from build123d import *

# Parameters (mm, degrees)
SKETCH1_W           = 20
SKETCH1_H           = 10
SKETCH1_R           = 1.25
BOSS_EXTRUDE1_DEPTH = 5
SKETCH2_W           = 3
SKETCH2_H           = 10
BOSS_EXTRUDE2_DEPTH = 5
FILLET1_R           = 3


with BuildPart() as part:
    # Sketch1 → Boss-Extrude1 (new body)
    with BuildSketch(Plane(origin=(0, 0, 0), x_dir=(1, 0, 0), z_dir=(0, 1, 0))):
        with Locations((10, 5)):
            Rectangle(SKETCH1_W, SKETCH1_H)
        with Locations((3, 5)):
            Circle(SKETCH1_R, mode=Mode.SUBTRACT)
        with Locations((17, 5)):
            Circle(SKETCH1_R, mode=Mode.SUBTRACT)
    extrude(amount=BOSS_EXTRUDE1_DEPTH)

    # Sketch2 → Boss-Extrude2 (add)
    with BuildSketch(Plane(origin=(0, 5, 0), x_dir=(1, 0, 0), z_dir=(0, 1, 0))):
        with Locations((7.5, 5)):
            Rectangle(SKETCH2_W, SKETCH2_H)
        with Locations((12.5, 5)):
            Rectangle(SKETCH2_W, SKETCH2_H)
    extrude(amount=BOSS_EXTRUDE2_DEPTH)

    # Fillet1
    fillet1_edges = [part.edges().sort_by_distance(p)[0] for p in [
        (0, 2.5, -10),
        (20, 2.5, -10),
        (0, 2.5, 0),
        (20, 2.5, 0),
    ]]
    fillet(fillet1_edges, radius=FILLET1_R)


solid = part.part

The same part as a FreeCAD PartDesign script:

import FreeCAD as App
import Part
import Sketcher
from FreeCAD import Vector
Q = App.Units.Quantity


def edges_at(feature, points):
    """Names of the edges that pass closest to the given points."""
    edges = feature.Shape.Edges
    near = lambda p: min(range(len(edges)), key=lambda i: edges[i].distToShape(Part.Vertex(*p))[0])
    return sorted({f"Edge{near(p) + 1}" for p in points})


def add_polygon(sketch, points):
    """Adds a closed chain of lines whose ends are joined by coincident constraints."""
    first, n = sketch.GeometryCount, len(points)
    for a, b in zip(points, points[1:] + points[:1]):
        sketch.addGeometry(Part.LineSegment(App.Vector(*a, 0), App.Vector(*b, 0)), False)
    for i in range(n):
        sketch.addConstraint(Sketcher.Constraint("Coincident", first + i, 2, first + (i + 1) % n, 1))

doc = App.newDocument("Part")
body = doc.addObject("PartDesign::Body", "Body")

# Sketch on XZ plane
sketch1 = body.newObject("Sketcher::SketchObject", "Sketch")
sketch1.AttachmentSupport = (doc.getObject("XZ_Plane"), [""])
sketch1.MapMode = "FlatFace"
add_polygon(sketch1, [(0, -10), (0, 0), (20, 0), (20, -10)])  # lines 0-3
sketch1.addGeometry(Part.Circle(Vector(3, -5, 0), Vector(0, 0, 1), 1.2), False)  # 4
sketch1.addGeometry(Part.Circle(Vector(17, -5, 0), Vector(0, 0, 1), 1.2), False)  # 5
sketch1.addConstraint([
    Sketcher.Constraint("Vertical", 0),
    Sketcher.Constraint("Horizontal", 1),
    Sketcher.Constraint("Vertical", 2),
    Sketcher.Constraint("Horizontal", 3),
    Sketcher.Constraint("Coincident", 0, 2, -1, 1),
    Sketcher.Constraint("Equal", 4, 5),
    Sketcher.Constraint("Horizontal", 4, 3, 5, 3),
    Sketcher.Constraint("Diameter", 4, Q("2.5 mm")),
    Sketcher.Constraint("DistanceX", 1, 1, 1, 2, Q("20 mm")),
    Sketcher.Constraint("DistanceY", 0, 1, 0, 2, Q("10 mm")),
    Sketcher.Constraint("DistanceX", -1, 1, 4, 3, Q("3 mm")),
    Sketcher.Constraint("DistanceY", 4, 3, -1, 1, Q("5 mm")),
    Sketcher.Constraint("DistanceX", -1, 1, 5, 3, Q("17 mm")),
])
pad1 = body.newObject("PartDesign::Pad", "Pad")
pad1.Profile = sketch1
pad1.Length = 5
pad1.Reversed = True

# Sketch on XZ plane
sketch2 = body.newObject("Sketcher::SketchObject", "Sketch001")
sketch2.AttachmentSupport = (doc.getObject("XZ_Plane"), [""])
sketch2.MapMode = "FlatFace"
sketch2.AttachmentOffset = App.Placement(Vector(0, 0, -5), App.Rotation())
add_polygon(sketch2, [(6, -10), (6, 0), (9, 0), (9, -10)])  # lines 0-3
add_polygon(sketch2, [(11, -10), (11, 0), (14, 0), (14, -10)])  # lines 4-7
sketch2.addConstraint([
    Sketcher.Constraint("Vertical", 0),
    Sketcher.Constraint("Horizontal", 1),
    Sketcher.Constraint("Vertical", 2),
    Sketcher.Constraint("Horizontal", 3),
    Sketcher.Constraint("Vertical", 4),
    Sketcher.Constraint("Horizontal", 5),
    Sketcher.Constraint("Vertical", 6),
    Sketcher.Constraint("Horizontal", 7),
    Sketcher.Constraint("PointOnObject", 0, 2, -1),
    Sketcher.Constraint("PointOnObject", 4, 2, -1),
    Sketcher.Constraint("Horizontal", 3, 2, 6, 2),
    Sketcher.Constraint("Equal", 3, 5),
    Sketcher.Constraint("DistanceX", 1, 1, 1, 2, Q("3 mm")),
    Sketcher.Constraint("DistanceY", 0, 1, 0, 2, Q("10 mm")),
    Sketcher.Constraint("DistanceX", -1, 1, 0, 2, Q("6 mm")),
    Sketcher.Constraint("DistanceX", -1, 1, 4, 2, Q("11 mm")),
])
pad2 = body.newObject("PartDesign::Pad", "Pad001")
pad2.Profile = sketch2
pad2.Length = 5
pad2.Reversed = True
doc.recompute()

fillet = body.newObject("PartDesign::Fillet", "Fillet")
fillet.Base = (pad2, edges_at(pad2, [
    (0, 2.5, -10),
    (20, 2.5, -10),
    (0, 2.5, 0),
    (20, 2.5, 0),
]))
fillet.Radius = 3

doc.recompute()
